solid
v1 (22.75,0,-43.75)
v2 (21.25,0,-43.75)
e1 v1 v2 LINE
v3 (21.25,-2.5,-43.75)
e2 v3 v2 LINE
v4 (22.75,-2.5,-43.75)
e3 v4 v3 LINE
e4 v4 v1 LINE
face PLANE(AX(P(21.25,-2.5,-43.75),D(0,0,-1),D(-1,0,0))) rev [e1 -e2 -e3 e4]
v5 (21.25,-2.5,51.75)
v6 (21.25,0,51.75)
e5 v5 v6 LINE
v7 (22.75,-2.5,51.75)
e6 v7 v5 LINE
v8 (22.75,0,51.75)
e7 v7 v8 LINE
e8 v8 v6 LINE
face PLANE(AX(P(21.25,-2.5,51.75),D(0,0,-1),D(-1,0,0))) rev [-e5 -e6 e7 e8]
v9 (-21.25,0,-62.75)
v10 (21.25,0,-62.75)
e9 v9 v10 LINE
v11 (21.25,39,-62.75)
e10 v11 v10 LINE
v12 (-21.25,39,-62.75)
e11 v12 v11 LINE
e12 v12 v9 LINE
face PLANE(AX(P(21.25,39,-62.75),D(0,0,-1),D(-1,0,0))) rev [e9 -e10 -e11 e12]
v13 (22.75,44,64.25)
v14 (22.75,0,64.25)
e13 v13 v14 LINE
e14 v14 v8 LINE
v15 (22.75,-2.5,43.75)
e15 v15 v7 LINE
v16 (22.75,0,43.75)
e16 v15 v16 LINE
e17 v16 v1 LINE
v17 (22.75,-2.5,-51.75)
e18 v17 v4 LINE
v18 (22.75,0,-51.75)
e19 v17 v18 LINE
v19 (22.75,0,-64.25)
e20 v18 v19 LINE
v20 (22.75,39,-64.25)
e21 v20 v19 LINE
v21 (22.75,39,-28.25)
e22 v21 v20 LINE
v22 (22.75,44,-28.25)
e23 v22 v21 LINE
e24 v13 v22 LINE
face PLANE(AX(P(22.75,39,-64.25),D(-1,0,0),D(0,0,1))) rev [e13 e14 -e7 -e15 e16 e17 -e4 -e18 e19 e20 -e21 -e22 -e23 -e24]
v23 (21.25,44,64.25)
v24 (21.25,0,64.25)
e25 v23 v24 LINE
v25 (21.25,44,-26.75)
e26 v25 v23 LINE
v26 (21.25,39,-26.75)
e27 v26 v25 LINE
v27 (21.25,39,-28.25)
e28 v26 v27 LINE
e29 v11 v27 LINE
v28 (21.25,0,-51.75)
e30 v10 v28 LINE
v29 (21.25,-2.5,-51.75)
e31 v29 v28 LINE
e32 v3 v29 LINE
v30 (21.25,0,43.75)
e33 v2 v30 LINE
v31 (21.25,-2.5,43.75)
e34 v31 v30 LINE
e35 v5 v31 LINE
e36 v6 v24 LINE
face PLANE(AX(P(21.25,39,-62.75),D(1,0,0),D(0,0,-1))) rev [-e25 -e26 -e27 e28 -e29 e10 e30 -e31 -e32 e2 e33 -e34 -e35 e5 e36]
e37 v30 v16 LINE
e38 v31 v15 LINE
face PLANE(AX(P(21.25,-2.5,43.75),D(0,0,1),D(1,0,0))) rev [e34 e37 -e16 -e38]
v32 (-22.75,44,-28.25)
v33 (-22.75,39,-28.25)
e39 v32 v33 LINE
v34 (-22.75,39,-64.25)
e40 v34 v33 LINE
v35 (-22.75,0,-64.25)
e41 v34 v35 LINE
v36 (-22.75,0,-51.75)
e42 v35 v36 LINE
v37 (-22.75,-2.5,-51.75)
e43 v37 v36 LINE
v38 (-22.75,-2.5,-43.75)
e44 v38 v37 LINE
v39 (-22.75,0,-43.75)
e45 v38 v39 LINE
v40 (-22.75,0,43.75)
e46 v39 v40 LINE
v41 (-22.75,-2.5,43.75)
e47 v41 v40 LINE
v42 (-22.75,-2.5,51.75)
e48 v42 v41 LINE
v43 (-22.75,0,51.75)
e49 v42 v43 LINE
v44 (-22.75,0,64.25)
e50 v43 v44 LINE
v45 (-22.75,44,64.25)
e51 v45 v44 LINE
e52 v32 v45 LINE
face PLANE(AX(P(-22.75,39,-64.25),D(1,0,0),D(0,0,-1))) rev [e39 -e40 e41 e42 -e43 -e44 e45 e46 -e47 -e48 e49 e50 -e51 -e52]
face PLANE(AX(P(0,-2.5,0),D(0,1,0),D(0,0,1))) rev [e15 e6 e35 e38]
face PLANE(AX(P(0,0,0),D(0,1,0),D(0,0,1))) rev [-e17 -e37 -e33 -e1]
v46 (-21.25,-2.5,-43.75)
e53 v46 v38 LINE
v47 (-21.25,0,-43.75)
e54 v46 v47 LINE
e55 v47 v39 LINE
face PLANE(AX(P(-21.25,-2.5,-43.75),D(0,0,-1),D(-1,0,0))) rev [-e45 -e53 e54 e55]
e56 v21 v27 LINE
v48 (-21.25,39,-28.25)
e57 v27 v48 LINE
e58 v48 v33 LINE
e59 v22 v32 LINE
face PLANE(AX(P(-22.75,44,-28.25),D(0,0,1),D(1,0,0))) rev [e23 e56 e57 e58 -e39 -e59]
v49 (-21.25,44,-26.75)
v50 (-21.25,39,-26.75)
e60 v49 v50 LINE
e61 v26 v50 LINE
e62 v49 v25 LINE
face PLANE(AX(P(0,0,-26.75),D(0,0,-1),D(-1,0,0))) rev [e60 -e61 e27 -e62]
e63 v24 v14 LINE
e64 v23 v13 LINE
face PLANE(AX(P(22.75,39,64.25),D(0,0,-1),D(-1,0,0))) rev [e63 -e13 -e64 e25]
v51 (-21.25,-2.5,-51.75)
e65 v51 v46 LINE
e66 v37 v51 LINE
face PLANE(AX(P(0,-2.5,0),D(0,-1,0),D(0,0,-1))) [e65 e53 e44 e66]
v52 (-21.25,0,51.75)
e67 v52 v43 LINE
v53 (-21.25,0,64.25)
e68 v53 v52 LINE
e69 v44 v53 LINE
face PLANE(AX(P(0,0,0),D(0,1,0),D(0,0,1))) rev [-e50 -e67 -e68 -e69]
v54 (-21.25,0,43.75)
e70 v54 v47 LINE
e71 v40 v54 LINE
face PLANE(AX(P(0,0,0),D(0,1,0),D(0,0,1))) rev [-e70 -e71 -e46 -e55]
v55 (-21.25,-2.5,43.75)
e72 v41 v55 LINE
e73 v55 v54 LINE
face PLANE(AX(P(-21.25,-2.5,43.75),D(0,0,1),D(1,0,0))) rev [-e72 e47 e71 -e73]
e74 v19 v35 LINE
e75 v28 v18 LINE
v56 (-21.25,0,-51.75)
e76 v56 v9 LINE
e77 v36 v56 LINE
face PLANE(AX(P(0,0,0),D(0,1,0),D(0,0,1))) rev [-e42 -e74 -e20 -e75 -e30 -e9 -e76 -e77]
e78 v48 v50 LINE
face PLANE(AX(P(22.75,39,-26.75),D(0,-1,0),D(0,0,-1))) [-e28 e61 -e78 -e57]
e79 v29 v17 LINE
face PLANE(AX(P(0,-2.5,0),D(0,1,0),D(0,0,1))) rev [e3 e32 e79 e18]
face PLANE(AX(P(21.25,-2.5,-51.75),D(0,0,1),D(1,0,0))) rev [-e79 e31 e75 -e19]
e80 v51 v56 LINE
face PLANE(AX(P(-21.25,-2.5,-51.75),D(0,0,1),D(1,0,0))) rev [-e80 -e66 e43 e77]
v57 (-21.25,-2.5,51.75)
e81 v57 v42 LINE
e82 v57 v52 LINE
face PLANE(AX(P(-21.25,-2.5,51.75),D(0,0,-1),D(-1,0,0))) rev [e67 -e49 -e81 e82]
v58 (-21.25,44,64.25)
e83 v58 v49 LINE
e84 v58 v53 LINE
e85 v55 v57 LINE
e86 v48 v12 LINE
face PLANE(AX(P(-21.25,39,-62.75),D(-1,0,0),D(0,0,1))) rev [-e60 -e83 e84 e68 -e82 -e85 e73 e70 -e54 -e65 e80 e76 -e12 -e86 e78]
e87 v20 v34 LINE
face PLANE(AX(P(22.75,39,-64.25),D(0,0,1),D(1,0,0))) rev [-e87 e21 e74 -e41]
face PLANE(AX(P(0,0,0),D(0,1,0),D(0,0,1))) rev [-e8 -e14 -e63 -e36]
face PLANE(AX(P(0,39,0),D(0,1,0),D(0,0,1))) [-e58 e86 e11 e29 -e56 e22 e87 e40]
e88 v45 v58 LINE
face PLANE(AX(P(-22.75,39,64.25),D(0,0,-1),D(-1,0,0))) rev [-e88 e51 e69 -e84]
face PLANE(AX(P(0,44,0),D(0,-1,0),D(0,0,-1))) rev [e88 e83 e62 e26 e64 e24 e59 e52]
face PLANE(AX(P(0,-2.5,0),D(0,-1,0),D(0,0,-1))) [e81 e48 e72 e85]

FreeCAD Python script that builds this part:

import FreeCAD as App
import Part
import Sketcher
from FreeCAD import Vector


def add_polygon(sketch, points):
    """Adds a closed chain of lines whose ends are joined by coincident constraints."""
    first, n = sketch.GeometryCount, len(points)
    for a, b in zip(points, points[1:] + points[:1]):
        sketch.addGeometry(Part.LineSegment(App.Vector(*a, 0), App.Vector(*b, 0)), False)
    for i in range(n):
        sketch.addConstraint(Sketcher.Constraint("Coincident", first + i, 2, first + (i + 1) % n, 1))

doc = App.newDocument("Part")
body = doc.addObject("PartDesign::Body", "Body")

sketch1 = body.newObject("Sketcher::SketchObject", "Sketch")
sketch1.AttachmentSupport = (doc.getObject("XZ_Plane"), [""])
sketch1.MapMode = "FlatFace"
add_polygon(sketch1, [(22.75, 64.25), (22.75, -64.25), (-22.75, -64.25), (-22.75, 64.25), (-21.25, 64.25), (-21.25, -62.75), (21.25, -62.75), (21.25, 64.25)])
sketch1.addConstraint([
    Sketcher.Constraint("Vertical", 0),
    Sketcher.Constraint("Horizontal", 1),
    Sketcher.Constraint("Vertical", 2),
    Sketcher.Constraint("Horizontal", 3),
    Sketcher.Constraint("Vertical", 4),
    Sketcher.Constraint("Horizontal", 5),
    Sketcher.Constraint("Vertical", 6),
    Sketcher.Constraint("Horizontal", 7),
    Sketcher.Constraint("Symmetric", 0, 2, 2, 2, -1, 1),
    Sketcher.Constraint("Symmetric", 3, 2, 6, 2, -2),
    Sketcher.Constraint("DistanceY", 4, 2, 4, 1, 127.0),
    Sketcher.Constraint("DistanceX", 1, 2, 1, 1, 45.5),
    Sketcher.Constraint("DistanceX", 3, 1, 3, 2, 1.5),
    Sketcher.Constraint("DistanceY", 0, 2, 0, 1, 128.5),
])
pad1 = body.newObject("PartDesign::Pad", "Pad")
pad1.Profile = sketch1
pad1.Length = 39
pad1.Reversed = True

sketch2 = body.newObject("Sketcher::SketchObject", "Sketch001")
sketch2.AttachmentSupport = (doc.getObject("XZ_Plane"), [""])
sketch2.MapMode = "FlatFace"
sketch2.AttachmentOffset = App.Placement(Vector(0, 0, -39), App.Rotation())
add_polygon(sketch2, [(-22.75, -28.25), (-22.75, 64.25), (-21.25, 64.25), (-21.25, -28.25)])
add_polygon(sketch2, [(21.25, -28.25), (21.25, 64.25), (22.75, 64.25), (22.75, -28.25)])
sketch2.addConstraint([
    Sketcher.Constraint("Vertical", 0),
    Sketcher.Constraint("Horizontal", 1),
    Sketcher.Constraint("Vertical", 2),
    Sketcher.Constraint("Horizontal", 3),
    Sketcher.Constraint("Vertical", 4),
    Sketcher.Constraint("Horizontal", 5),
    Sketcher.Constraint("Vertical", 6),
    Sketcher.Constraint("Horizontal", 7),
    Sketcher.Constraint("Symmetric", 1, 2, 4, 2, -2),
    Sketcher.Constraint("Symmetric", 3, 2, 6, 2, -2),
    Sketcher.Constraint("DistanceX", 1, 1, 1, 2, 1.5),
    Sketcher.Constraint("DistanceY", 0, 1, 0, 2, 92.5),
    Sketcher.Constraint("DistanceX", 0, 2, 4, 2, 44.0),
    Sketcher.Constraint("DistanceY", -1, 1, 0, 2, 64.25),
])
pad2 = body.newObject("PartDesign::Pad", "Pad001")
pad2.Profile = sketch2
pad2.Length = 5
pad2.Reversed = True

sketch3 = body.newObject("Sketcher::SketchObject", "Sketch002")
sketch3.AttachmentSupport = (doc.getObject("XZ_Plane"), [""])
sketch3.MapMode = "FlatFace"
add_polygon(sketch3, [(21.25, -43.75), (21.25, -51.75), (22.75, -51.75), (22.75, -43.75)])
add_polygon(sketch3, [(-22.75, -43.75), (-22.75, -51.75), (-21.25, -51.75), (-21.25, -43.75)])
add_polygon(sketch3, [(21.25, 51.75), (21.25, 43.75), (22.75, 43.75), (22.75, 51.75)])
add_polygon(sketch3, [(-22.75, 51.75), (-22.75, 43.75), (-21.25, 43.75), (-21.25, 51.75)])
sketch3.addConstraint([
    Sketcher.Constraint("Vertical", 0),
    Sketcher.Constraint("Horizontal", 1),
    Sketcher.Constraint("Vertical", 2),
    Sketcher.Constraint("Horizontal", 3),
    Sketcher.Constraint("Vertical", 4),
    Sketcher.Constraint("Horizontal", 5),
    Sketcher.Constraint("Vertical", 6),
    Sketcher.Constraint("Horizontal", 7),
    Sketcher.Constraint("Vertical", 8),
    Sketcher.Constraint("Horizontal", 9),
    Sketcher.Constraint("Vertical", 10),
    Sketcher.Constraint("Horizontal", 11),
    Sketcher.Constraint("Vertical", 12),
    Sketcher.Constraint("Horizontal", 13),
    Sketcher.Constraint("Vertical", 14),
    Sketcher.Constraint("Horizontal", 15),
    Sketcher.Constraint("Symmetric", 6, 2, 8, 2, -1, 1),
    Sketcher.Constraint("Symmetric", 4, 2, 10, 2, -1, 1),
    Sketcher.Constraint("Symmetric", 2, 2, 12, 2, -1, 1),
    Sketcher.Constraint("Symmetric", 0, 2, 14, 2, -1, 1),
    Sketcher.Constraint("Symmetric", 1, 2, 4, 2, -2),
    Sketcher.Constraint("Symmetric", 3, 2, 6, 2, -2),
    Sketcher.Constraint("DistanceY", 0, 2, 0, 1, 8.0),
    Sketcher.Constraint("DistanceX", 1, 1, 1, 2, 1.5),
    Sketcher.Constraint("DistanceX", 4, 2, 0, 2, 44.0),
    Sketcher.Constraint("DistanceY", 3, 2, 8, 2, 87.5),
])
pad3 = body.newObject("PartDesign::Pad", "Pad002")
pad3.Profile = sketch3
pad3.Length = 2.5

sketch4 = body.newObject("Sketcher::SketchObject", "Sketch003")
sketch4.AttachmentSupport = (doc.getObject("XY_Plane"), [""])
sketch4.MapMode = "FlatFace"
sketch4.AttachmentOffset = App.Placement(Vector(0, 0, -28.25), App.Rotation())
add_polygon(sketch4, [(22.75, 44), (22.75, 39), (-22.75, 39), (-22.75, 44)])
sketch4.addConstraint([
    Sketcher.Constraint("Vertical", 0),
    Sketcher.Constraint("Horizontal", 1),
    Sketcher.Constraint("Vertical", 2),
    Sketcher.Constraint("Horizontal", 3),
    Sketcher.Constraint("DistanceY", 0, 2, 0, 1, 5.0),
    Sketcher.Constraint("DistanceX", 1, 2, 1, 1, 45.5),
    Sketcher.Constraint("DistanceY", -1, 1, 0, 2, 39.0),
    Sketcher.Constraint("DistanceX", -1, 1, 0, 2, 22.75),
])
pad4 = body.newObject("PartDesign::Pad", "Pad003")
pad4.Profile = sketch4
pad4.Length = 1.5

doc.recompute()
